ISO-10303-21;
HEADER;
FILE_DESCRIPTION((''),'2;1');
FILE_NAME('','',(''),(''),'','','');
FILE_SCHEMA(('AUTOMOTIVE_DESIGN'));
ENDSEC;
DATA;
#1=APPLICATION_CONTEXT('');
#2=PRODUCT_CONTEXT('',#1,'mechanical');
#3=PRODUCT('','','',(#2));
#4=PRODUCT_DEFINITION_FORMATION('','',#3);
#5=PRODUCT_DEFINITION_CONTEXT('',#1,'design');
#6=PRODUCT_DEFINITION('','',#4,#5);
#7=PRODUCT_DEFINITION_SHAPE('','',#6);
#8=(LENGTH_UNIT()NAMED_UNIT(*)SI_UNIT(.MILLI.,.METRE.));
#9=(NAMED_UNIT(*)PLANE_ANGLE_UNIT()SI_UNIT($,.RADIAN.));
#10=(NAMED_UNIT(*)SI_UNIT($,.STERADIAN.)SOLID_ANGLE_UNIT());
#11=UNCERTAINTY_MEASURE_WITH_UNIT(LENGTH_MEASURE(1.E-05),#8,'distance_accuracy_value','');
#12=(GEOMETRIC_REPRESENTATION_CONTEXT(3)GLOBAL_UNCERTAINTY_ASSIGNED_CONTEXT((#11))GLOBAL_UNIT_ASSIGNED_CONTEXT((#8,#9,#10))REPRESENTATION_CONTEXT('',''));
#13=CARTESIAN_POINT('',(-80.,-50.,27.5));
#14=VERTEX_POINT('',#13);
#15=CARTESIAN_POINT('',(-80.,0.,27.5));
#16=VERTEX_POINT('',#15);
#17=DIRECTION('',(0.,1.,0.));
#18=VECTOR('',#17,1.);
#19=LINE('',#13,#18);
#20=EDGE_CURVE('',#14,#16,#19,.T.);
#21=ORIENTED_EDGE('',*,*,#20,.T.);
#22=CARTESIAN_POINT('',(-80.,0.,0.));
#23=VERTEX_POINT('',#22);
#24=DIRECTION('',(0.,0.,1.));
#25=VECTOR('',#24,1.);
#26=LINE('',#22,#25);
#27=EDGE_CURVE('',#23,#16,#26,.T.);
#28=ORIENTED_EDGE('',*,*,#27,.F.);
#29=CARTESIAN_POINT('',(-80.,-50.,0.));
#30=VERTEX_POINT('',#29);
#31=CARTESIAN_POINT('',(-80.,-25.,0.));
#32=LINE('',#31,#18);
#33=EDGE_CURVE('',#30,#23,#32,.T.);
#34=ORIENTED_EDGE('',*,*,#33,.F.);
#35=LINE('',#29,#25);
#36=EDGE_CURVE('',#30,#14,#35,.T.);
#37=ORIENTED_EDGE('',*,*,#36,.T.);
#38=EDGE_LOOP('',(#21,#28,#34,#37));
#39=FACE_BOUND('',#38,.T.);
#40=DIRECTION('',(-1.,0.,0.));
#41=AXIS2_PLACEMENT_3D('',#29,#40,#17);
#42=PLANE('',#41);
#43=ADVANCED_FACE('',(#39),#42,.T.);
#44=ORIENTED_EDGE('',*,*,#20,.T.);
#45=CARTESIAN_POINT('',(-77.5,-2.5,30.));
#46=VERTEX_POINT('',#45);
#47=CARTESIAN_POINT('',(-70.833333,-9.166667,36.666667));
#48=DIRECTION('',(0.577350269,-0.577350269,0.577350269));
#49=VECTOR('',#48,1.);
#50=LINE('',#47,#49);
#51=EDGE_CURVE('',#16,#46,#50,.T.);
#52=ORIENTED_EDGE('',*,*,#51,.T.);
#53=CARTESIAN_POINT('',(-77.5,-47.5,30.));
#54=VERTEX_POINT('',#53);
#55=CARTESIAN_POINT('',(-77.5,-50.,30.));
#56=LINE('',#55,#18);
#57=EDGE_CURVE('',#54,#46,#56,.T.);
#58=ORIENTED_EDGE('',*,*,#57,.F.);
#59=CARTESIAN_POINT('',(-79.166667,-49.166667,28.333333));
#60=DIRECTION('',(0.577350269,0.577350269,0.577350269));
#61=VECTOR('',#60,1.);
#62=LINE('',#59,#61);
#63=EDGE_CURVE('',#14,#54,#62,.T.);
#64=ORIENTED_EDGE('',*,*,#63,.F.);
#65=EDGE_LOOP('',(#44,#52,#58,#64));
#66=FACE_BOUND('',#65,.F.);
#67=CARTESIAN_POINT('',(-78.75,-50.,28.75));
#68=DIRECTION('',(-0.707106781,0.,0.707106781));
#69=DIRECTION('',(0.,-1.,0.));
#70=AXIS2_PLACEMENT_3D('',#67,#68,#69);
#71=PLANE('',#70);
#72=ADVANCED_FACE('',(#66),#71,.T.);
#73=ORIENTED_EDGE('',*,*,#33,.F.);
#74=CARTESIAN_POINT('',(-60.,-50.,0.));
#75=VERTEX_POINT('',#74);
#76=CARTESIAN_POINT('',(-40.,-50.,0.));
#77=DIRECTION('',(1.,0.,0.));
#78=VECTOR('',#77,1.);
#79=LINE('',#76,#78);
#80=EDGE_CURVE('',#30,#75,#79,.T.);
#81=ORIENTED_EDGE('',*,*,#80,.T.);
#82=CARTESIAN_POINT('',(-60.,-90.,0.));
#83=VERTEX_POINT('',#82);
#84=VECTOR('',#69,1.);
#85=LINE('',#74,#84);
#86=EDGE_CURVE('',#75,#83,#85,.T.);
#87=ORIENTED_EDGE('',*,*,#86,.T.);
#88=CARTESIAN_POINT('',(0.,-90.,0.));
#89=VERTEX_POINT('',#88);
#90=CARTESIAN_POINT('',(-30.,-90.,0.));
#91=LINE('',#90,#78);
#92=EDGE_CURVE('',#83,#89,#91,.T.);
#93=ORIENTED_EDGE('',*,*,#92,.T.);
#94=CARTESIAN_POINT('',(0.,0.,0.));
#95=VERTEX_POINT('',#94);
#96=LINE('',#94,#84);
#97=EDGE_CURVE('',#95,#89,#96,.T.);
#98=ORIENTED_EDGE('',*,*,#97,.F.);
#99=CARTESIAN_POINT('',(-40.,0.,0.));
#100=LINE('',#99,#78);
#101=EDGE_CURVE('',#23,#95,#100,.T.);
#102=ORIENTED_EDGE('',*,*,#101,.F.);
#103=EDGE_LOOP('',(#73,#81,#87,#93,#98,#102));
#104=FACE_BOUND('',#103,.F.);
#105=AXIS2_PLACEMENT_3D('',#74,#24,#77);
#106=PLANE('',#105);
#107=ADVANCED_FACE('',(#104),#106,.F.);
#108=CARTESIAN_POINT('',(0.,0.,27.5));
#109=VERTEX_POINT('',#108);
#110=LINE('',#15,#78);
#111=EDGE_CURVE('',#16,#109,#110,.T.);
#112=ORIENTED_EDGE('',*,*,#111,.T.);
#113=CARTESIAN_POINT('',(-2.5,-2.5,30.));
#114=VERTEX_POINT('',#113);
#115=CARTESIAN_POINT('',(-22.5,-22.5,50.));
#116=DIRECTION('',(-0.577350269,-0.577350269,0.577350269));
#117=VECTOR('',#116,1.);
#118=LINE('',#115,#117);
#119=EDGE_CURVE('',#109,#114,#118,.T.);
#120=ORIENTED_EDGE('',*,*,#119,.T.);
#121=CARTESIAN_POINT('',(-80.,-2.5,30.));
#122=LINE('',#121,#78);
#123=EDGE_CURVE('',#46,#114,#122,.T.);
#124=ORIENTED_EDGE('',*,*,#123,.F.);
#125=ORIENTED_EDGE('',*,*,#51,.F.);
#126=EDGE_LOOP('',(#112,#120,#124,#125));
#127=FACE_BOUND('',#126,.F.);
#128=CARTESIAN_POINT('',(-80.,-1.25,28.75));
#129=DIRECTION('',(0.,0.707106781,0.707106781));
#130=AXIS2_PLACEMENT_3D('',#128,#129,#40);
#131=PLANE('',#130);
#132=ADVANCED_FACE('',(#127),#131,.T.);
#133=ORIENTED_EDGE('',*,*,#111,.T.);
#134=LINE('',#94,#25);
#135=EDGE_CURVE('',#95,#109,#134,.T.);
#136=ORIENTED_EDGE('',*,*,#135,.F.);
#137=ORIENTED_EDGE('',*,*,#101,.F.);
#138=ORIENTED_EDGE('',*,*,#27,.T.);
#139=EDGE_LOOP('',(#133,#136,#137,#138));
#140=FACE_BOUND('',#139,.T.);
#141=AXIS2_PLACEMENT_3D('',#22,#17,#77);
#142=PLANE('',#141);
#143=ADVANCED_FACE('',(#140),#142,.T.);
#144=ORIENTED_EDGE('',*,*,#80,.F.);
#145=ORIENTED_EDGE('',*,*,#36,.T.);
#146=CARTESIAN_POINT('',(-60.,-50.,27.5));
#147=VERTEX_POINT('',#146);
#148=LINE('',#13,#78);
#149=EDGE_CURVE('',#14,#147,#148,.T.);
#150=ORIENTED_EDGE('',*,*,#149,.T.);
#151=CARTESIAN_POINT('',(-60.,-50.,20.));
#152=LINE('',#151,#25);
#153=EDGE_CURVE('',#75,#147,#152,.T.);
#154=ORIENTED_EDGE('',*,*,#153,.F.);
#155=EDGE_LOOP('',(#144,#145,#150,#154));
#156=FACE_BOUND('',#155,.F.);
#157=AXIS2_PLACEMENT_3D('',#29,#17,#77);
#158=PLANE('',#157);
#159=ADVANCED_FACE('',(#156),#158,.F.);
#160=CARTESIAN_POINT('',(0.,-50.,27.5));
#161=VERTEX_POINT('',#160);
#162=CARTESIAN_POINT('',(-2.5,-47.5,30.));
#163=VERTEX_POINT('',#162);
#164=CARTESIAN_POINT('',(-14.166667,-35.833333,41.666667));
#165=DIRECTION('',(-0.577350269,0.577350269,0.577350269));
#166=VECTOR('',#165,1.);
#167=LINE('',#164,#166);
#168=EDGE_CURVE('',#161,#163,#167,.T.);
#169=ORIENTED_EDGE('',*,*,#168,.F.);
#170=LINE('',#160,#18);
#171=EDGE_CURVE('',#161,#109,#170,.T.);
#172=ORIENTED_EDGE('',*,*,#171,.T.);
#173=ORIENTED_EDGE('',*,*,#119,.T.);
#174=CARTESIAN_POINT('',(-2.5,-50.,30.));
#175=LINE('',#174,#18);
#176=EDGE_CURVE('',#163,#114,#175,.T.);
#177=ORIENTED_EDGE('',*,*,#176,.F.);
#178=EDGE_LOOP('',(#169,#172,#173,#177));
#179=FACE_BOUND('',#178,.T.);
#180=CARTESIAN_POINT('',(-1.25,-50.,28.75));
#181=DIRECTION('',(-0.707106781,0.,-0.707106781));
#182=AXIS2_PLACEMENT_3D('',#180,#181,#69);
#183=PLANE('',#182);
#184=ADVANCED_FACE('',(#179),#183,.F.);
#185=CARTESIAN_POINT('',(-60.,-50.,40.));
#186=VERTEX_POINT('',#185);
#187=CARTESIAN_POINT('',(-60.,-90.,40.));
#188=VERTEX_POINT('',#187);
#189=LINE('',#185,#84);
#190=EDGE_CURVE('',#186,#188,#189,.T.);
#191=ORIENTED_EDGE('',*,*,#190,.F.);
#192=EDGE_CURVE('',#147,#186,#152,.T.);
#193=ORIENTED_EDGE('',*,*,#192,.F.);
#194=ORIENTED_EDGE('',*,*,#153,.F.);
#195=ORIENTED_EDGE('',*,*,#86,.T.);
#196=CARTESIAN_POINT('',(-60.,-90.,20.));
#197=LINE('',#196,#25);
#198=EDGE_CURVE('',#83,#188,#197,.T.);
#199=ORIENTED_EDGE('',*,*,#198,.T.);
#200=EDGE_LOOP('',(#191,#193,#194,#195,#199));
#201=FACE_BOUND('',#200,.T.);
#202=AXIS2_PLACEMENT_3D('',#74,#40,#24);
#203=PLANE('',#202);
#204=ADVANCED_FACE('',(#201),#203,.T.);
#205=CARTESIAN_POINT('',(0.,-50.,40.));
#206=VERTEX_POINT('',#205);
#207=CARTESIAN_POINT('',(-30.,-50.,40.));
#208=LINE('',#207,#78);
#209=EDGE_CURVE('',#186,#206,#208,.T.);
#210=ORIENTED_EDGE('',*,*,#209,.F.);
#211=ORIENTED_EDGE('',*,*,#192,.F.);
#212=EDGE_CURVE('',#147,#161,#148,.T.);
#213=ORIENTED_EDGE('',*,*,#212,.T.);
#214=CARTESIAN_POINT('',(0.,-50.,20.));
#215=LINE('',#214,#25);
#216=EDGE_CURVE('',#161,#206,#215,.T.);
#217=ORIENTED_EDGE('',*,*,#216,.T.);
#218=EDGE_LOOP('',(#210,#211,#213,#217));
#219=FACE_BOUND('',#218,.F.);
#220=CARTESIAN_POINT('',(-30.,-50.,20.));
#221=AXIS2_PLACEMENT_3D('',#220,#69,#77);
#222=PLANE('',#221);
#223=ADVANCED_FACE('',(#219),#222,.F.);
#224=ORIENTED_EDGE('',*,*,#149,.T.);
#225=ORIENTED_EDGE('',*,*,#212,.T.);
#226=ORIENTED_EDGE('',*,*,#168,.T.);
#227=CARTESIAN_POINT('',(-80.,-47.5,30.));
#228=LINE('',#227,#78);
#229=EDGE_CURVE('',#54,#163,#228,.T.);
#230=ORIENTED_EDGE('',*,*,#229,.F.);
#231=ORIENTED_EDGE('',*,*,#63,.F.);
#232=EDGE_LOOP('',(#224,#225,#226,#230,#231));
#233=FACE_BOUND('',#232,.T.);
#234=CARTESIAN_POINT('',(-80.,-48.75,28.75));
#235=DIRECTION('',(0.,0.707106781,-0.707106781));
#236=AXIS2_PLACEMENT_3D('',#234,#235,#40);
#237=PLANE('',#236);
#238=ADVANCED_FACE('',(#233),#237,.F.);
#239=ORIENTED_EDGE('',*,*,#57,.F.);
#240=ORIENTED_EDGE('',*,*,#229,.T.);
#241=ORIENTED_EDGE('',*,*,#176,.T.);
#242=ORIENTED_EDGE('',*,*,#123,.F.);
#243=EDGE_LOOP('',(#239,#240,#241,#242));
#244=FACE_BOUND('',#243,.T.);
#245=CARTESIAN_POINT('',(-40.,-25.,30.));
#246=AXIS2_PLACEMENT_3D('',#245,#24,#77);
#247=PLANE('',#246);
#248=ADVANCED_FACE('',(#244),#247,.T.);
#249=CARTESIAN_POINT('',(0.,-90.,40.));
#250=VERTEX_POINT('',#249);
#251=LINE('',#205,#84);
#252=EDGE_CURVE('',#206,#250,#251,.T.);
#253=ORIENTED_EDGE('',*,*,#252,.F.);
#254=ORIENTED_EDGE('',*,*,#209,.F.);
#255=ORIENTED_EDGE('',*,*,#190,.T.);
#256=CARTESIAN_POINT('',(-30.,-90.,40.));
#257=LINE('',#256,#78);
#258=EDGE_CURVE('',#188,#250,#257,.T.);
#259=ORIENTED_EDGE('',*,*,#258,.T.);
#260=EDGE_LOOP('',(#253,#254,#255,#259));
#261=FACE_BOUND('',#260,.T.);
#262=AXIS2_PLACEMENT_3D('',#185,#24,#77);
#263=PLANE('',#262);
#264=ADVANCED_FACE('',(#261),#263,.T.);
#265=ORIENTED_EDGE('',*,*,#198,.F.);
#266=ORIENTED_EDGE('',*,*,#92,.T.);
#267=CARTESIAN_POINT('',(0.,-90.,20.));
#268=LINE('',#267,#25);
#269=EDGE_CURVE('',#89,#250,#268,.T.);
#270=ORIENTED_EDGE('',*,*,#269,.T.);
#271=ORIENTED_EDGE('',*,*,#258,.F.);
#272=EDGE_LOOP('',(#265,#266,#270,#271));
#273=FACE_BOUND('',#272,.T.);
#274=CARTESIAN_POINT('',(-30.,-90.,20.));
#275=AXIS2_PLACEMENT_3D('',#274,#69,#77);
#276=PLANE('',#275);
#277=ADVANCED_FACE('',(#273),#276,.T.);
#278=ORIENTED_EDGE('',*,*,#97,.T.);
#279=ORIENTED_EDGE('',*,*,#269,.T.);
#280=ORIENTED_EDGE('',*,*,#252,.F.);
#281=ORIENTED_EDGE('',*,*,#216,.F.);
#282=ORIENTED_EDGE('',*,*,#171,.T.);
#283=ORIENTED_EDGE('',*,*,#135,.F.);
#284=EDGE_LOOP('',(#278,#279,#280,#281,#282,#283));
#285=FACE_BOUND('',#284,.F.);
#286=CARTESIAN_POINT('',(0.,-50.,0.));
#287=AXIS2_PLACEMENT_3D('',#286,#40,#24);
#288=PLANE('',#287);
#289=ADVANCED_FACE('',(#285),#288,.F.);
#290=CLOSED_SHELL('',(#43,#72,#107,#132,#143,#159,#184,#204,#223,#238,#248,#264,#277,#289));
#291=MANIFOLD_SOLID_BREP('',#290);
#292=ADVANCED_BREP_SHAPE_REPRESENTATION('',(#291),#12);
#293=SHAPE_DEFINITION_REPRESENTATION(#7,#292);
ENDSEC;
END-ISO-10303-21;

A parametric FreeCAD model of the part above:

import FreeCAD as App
import Part
import Sketcher

V = App.Vector


def edges_at(feature, points):
    """Names of the edges that pass closest to the given points."""
    edges = feature.Shape.Edges
    near = lambda p: min(range(len(edges)), key=lambda i: edges[i].distToShape(Part.Vertex(*p))[0])
    return sorted({f"Edge{near(p) + 1}" for p in points})


def add_polygon(sketch, points):
    """Adds a closed chain of lines whose ends are joined by coincident constraints."""
    first, n = sketch.GeometryCount, len(points)
    for a, b in zip(points, points[1:] + points[:1]):
        sketch.addGeometry(Part.LineSegment(App.Vector(*a, 0), App.Vector(*b, 0)), False)
    for i in range(n):
        sketch.addConstraint(Sketcher.Constraint("Coincident", first + i, 2, first + (i + 1) % n, 1))

doc = App.newDocument("Part")
body = doc.addObject("PartDesign::Body", "Body")

sketch1 = doc.addObject("Sketcher::SketchObject", "Sketch")
body.addObject(sketch1)
sketch1.AttachmentSupport = (doc.XY_Plane, [""])
sketch1.MapMode = "FlatFace"
add_polygon(sketch1, [(-80, 0), (-80, -50), (0, -50), (0, 0)])
sketch1.addConstraint(Sketcher.Constraint("Vertical", 0))
sketch1.addConstraint(Sketcher.Constraint("Horizontal", 1))
sketch1.addConstraint(Sketcher.Constraint("Vertical", 2))
sketch1.addConstraint(Sketcher.Constraint("Horizontal", 3))
sketch1.addConstraint(Sketcher.Constraint("Coincident", 2, 2, -1, 1))
sketch1.addConstraint(Sketcher.Constraint("DistanceX", 1, 1, 1, 2, 80.0))
sketch1.addConstraint(Sketcher.Constraint("DistanceY", 0, 2, 0, 1, 50.0))
pad1 = doc.addObject("PartDesign::Pad", "Pad")
body.addObject(pad1)
pad1.Profile = sketch1
pad1.Length = 30
doc.recompute()

chamfer = doc.addObject("PartDesign::Chamfer", "Chamfer")
body.addObject(chamfer)
chamfer.Base = (pad1, edges_at(pad1, [
    (0, -25, 30),
    (-40, 0, 30),
    (-80, -25, 30),
    (-40, -50, 30),
]))
chamfer.Size = 2.5

sketch2 = doc.addObject("Sketcher::SketchObject", "Sketch001")
body.addObject(sketch2)
sketch2.AttachmentSupport = (doc.XZ_Plane, [""])
sketch2.MapMode = "FlatFace"
sketch2.AttachmentOffset = App.Placement(V(0, 0, 50), App.Rotation())
add_polygon(sketch2, [(-60, 40), (-60, 0), (0, 0), (0, 40)])
sketch2.addConstraint(Sketcher.Constraint("Vertical", 0))
sketch2.addConstraint(Sketcher.Constraint("Horizontal", 1))
sketch2.addConstraint(Sketcher.Constraint("Vertical", 2))
sketch2.addConstraint(Sketcher.Constraint("Horizontal", 3))
sketch2.addConstraint(Sketcher.Constraint("Coincident", 1, 2, -1, 1))
sketch2.addConstraint(Sketcher.Constraint("DistanceX", 1, 1, 1, 2, 60.0))
sketch2.addConstraint(Sketcher.Constraint("DistanceY", 0, 2, 0, 1, 40.0))
pad2 = doc.addObject("PartDesign::Pad", "Pad001")
body.addObject(pad2)
pad2.Profile = sketch2
pad2.Length = 40

doc.recompute()
